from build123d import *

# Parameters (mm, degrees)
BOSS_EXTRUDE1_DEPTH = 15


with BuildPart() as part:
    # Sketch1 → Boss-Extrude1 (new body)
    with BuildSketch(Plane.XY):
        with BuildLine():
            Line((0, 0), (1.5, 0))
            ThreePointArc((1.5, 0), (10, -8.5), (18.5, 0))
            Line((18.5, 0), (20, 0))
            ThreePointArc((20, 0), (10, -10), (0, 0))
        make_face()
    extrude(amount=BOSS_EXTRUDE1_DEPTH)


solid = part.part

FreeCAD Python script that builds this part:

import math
import FreeCAD as App
import Part
import Sketcher

V = App.Vector

doc = App.newDocument("Part")
body = doc.addObject("PartDesign::Body", "Body")

sketch1 = body.newObject("Sketcher::SketchObject", "Sketch")
sketch1.AttachmentSupport = (doc.getObject("XY_Plane"), [""])
sketch1.MapMode = "FlatFace"
sketch1.addGeometry(Part.LineSegment(V(1.5, 0, 0), V(0, 0, 0)), False)
sketch1.addGeometry(Part.ArcOfCircle(Part.Circle(V(10, 0, 0), V(0, 0, 1), 10), math.radians(180), math.radians(360)), False)
sketch1.addGeometry(Part.LineSegment(V(20, 0, 0), V(18.5, 0, 0)), False)
sketch1.addGeometry(Part.ArcOfCircle(Part.Circle(V(10, 0, 0), V(0, 0, 1), 8.5), math.radians(180), math.radians(360)), False)
sketch1.addConstraint(Sketcher.Constraint("Coincident", 0, 2, 1, 1))
sketch1.addConstraint(Sketcher.Constraint("Coincident", 1, 2, 2, 1))
sketch1.addConstraint(Sketcher.Constraint("Coincident", 2, 2, 3, 2))
sketch1.addConstraint(Sketcher.Constraint("Coincident", 3, 1, 0, 1))
sketch1.addConstraint(Sketcher.Constraint("Horizontal", 0))
sketch1.addConstraint(Sketcher.Constraint("Horizontal", 2))
sketch1.addConstraint(Sketcher.Constraint("Coincident", 0, 2, -1, 1))
sketch1.addConstraint(Sketcher.Constraint("Coincident", 3, 3, 1, 3))
sketch1.addConstraint(Sketcher.Constraint("PointOnObject", 1, 3, -1))
sketch1.addConstraint(Sketcher.Constraint("PointOnObject", 1, 2, -1))
sketch1.addConstraint(Sketcher.Constraint("Radius", 1, 10.0))
sketch1.addConstraint(Sketcher.Constraint("Radius", 3, 8.5))
pad1 = body.newObject("PartDesign::Pad", "Pad")
pad1.Profile = sketch1
pad1.Length = 15

doc.recompute()
